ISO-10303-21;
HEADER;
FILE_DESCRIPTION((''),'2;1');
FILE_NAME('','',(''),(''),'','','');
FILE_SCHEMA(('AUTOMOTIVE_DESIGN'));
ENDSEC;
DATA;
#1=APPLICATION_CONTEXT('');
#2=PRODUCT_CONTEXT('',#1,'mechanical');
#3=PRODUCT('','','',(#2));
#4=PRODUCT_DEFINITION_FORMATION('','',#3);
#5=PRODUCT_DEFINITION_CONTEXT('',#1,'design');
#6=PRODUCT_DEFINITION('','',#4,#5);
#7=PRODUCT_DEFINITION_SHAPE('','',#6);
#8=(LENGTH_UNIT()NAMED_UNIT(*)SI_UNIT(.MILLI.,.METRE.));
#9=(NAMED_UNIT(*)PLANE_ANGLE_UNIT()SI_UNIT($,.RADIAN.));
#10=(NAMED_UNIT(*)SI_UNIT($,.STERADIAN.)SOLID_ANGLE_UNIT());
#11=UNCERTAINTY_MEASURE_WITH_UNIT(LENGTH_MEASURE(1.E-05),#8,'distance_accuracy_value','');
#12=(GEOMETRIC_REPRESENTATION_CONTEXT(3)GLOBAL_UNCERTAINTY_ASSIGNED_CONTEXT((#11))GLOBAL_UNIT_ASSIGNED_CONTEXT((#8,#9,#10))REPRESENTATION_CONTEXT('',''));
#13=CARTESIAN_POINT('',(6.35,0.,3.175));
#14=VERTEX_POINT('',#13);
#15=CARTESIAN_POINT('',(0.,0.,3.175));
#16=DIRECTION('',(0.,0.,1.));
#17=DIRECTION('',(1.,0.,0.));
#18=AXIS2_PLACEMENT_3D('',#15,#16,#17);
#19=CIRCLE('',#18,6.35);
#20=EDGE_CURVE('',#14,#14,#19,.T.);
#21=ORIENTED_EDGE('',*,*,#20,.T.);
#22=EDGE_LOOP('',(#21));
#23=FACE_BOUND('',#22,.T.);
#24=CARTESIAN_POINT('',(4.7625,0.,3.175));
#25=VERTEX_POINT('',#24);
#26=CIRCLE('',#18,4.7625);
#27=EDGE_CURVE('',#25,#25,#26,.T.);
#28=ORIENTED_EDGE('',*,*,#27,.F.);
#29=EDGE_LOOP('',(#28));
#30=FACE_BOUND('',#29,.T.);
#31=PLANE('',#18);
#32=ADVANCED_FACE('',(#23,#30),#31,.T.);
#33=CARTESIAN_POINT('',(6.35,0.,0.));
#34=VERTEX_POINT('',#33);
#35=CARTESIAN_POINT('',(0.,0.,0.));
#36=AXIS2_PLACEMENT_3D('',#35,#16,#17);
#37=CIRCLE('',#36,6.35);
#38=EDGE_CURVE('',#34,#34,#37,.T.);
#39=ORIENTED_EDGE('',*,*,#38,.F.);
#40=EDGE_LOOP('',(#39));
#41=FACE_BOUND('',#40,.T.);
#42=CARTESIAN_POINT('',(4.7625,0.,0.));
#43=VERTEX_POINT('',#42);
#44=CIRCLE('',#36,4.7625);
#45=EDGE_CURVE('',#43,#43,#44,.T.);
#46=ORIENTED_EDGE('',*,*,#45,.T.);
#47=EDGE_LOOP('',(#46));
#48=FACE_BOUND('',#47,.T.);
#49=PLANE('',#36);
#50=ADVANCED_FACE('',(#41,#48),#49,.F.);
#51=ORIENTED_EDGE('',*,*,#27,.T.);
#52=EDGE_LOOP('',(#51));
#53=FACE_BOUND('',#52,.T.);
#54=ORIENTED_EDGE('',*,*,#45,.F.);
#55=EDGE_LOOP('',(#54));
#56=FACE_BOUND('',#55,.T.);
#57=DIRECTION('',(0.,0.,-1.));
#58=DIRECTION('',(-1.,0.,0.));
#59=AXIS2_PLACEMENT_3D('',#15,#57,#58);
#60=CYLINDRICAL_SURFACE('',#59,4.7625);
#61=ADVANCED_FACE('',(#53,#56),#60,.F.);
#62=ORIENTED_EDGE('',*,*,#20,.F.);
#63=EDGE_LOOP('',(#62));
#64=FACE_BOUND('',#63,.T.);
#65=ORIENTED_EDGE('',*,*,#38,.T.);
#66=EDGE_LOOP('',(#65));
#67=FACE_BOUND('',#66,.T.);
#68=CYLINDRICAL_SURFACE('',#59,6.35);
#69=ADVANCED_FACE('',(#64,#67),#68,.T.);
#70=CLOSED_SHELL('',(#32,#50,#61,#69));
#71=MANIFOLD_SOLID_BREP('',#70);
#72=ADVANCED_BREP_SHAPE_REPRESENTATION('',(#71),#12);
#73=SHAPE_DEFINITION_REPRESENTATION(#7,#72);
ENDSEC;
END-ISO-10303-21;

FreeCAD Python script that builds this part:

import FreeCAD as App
import Part
import Sketcher

V = App.Vector
Q = App.Units.Quantity

doc = App.newDocument("Part")
params = doc.addObject("Spreadsheet::Sheet", "Params")
for row, (alias, value) in enumerate([
    ("sketch1_diameter", "0.5 in"),
    ("sketch1_diameter2", "0.375 in"),
    ("pad1_length", "0.125 in"),
], start=1):
    params.set(f"A{row}", alias)
    params.set(f"B{row}", "=" + value)
    params.setAlias(f"B{row}", alias)

body = doc.addObject("PartDesign::Body", "Body")

sketch1 = body.newObject("Sketcher::SketchObject", "Sketch")
sketch1.AttachmentSupport = (doc.getObject("XY_Plane"), [""])
sketch1.MapMode = "FlatFace"
sketch1.addGeometry([
    Part.Circle(V(0, 0, 0), V(0, 0, 1), 6.3),
    Part.Circle(V(0, 0, 0), V(0, 0, 1), 4.8),
], False)
sketch1.addConstraint([
    Sketcher.Constraint("Coincident", 0, 3, -1, 1),
    Sketcher.Constraint("Coincident", 1, 3, -1, 1),
    Sketcher.Constraint("Diameter", 0, Q("0.5 in")),
    Sketcher.Constraint("Diameter", 1, Q("0.375 in")),
])
sketch1.setExpression("Constraints[2]", "Params.sketch1_diameter")
sketch1.setExpression("Constraints[3]", "Params.sketch1_diameter2")
pad1 = body.newObject("PartDesign::Pad", "Pad")
pad1.Profile = sketch1
pad1.setExpression("Length", "Params.pad1_length")

doc.recompute()
